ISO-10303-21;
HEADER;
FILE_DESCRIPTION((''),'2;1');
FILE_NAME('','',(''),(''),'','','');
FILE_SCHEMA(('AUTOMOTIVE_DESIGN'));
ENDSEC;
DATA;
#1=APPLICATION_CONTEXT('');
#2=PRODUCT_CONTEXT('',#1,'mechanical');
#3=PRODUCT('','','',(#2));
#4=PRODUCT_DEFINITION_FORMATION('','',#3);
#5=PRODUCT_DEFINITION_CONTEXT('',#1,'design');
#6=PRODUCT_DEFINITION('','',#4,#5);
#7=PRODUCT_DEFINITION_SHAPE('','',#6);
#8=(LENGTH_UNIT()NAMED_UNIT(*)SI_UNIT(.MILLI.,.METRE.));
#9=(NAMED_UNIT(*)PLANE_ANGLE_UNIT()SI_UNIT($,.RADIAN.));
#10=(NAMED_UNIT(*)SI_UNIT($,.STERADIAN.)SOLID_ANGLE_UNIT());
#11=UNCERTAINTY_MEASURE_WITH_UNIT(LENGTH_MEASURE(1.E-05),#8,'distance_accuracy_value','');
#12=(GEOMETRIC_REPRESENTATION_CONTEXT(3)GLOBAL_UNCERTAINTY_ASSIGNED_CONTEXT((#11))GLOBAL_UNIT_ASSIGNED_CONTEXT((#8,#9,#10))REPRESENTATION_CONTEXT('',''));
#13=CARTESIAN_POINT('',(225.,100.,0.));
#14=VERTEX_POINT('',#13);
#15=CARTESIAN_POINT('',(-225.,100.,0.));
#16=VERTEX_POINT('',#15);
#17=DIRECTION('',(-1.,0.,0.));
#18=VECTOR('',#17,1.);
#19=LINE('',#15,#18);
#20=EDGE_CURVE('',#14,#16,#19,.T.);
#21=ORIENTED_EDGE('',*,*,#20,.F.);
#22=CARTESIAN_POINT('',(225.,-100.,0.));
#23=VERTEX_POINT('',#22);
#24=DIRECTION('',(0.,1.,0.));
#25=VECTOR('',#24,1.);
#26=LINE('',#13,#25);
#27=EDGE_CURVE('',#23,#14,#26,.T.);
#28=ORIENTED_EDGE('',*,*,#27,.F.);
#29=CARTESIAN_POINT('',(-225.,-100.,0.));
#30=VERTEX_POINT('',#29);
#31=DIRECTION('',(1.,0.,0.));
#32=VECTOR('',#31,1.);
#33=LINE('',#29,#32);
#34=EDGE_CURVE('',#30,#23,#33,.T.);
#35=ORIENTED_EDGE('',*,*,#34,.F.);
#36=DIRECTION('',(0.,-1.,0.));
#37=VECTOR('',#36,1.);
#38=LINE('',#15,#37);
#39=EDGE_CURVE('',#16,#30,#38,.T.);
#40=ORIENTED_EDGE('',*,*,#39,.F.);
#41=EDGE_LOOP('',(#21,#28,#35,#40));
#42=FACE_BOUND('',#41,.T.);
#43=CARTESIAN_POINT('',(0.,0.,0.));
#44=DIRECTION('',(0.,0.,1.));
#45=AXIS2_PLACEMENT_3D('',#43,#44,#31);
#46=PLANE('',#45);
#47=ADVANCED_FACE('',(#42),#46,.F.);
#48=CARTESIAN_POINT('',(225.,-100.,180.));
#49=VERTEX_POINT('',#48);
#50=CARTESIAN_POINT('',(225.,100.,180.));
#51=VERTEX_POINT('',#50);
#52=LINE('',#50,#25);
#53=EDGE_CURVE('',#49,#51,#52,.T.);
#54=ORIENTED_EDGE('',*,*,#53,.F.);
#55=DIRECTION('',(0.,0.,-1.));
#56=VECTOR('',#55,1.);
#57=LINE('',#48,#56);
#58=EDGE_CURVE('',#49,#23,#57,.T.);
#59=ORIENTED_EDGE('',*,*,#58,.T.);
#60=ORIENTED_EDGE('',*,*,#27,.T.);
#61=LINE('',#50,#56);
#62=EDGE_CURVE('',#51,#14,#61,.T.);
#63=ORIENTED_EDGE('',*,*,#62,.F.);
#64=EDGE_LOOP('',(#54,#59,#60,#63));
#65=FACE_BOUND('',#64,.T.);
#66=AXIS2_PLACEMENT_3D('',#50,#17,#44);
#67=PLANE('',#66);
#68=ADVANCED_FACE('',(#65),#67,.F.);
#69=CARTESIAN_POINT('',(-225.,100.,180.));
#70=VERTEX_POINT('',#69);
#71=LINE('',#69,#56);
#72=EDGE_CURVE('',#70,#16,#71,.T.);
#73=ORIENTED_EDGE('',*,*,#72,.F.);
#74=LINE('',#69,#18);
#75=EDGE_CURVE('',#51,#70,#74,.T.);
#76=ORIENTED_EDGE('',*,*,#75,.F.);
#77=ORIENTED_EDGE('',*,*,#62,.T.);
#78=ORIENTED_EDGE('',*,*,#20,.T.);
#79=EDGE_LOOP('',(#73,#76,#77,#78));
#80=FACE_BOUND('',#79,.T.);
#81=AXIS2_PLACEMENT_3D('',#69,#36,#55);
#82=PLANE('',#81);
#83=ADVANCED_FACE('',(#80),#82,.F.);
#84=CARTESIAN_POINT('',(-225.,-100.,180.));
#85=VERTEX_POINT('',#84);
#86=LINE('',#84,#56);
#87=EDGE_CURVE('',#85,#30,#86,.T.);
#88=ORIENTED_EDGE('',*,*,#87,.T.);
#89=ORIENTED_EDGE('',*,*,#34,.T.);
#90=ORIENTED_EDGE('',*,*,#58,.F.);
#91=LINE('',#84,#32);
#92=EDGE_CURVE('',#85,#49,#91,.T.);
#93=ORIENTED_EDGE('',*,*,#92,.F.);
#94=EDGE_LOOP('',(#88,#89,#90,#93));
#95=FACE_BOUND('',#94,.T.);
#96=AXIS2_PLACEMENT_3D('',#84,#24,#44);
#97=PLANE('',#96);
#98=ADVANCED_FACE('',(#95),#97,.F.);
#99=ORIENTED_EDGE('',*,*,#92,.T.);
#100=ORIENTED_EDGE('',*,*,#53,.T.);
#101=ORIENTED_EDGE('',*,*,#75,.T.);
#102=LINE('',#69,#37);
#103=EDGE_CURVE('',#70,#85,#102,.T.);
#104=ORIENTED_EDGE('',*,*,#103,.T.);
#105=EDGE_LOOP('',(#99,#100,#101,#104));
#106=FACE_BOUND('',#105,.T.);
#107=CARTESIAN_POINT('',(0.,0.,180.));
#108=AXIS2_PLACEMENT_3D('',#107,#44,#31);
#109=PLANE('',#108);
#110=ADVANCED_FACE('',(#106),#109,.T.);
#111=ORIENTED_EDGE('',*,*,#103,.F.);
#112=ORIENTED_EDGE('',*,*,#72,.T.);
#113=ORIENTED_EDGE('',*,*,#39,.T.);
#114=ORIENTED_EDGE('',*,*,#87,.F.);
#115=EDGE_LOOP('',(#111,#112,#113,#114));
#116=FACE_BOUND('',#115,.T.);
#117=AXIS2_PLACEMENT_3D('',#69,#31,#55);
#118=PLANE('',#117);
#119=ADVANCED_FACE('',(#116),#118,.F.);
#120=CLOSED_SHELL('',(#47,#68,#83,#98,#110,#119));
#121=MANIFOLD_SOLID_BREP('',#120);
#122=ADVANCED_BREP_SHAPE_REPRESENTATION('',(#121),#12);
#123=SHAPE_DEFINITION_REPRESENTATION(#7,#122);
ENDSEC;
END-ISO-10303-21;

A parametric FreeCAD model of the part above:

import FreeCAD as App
import Part
import Sketcher

V = App.Vector

doc = App.newDocument("Part")
body = doc.addObject("PartDesign::Body", "Body")

sketch1 = body.newObject("Sketcher::SketchObject", "Sketch")
sketch1.AttachmentSupport = (doc.getObject("XY_Plane"), [""])
sketch1.MapMode = "FlatFace"
sketch1.addGeometry([
    Part.LineSegment(V(-225, 100, 0), V(-225, -100, 0)),
    Part.LineSegment(V(-225, -100, 0), V(225, -100, 0)),
    Part.LineSegment(V(225, -100, 0), V(225, 100, 0)),
    Part.LineSegment(V(225, 100, 0), V(-225, 100, 0)),
], False)
sketch1.addConstraint([
    Sketcher.Constraint("Coincident", 0, 2, 1, 1),
    Sketcher.Constraint("Coincident", 1, 2, 2, 1),
    Sketcher.Constraint("Coincident", 2, 2, 3, 1),
    Sketcher.Constraint("Coincident", 3, 2, 0, 1),
    Sketcher.Constraint("Vertical", 0),
    Sketcher.Constraint("Horizontal", 1),
    Sketcher.Constraint("Vertical", 2),
    Sketcher.Constraint("Horizontal", 3),
    Sketcher.Constraint("Symmetric", 0, 2, 2, 2, -1, 1),
    Sketcher.Constraint("DistanceX", 1, 1, 1, 2, 450.0),
    Sketcher.Constraint("DistanceY", 0, 2, 0, 1, 200.0),
])
pad1 = body.newObject("PartDesign::Pad", "Pad")
pad1.Profile = sketch1
pad1.Length = 180

doc.recompute()
